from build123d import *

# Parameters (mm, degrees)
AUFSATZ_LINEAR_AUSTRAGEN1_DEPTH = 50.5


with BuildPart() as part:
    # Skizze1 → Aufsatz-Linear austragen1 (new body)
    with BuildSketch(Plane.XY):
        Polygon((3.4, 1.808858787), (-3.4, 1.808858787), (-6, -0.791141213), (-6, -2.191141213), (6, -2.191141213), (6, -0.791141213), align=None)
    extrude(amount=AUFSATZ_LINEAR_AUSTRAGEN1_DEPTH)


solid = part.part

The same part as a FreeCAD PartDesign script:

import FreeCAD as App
import Part
import Sketcher
from FreeCAD import Vector
Q = App.Units.Quantity

doc = App.newDocument("Part")
body = doc.addObject("PartDesign::Body", "Body")

sketch1 = doc.addObject("Sketcher::SketchObject", "Sketch")
body.addObject(sketch1)
sketch1.AttachmentSupport = (doc.XY_Plane, [""])
sketch1.MapMode = "FlatFace"
sketch1.addGeometry(Part.LineSegment(Vector(3.4, 1.8, 0), Vector(-3.4, 1.8, 0)), False)
sketch1.addGeometry(Part.LineSegment(Vector(-3.4, 1.8, 0), Vector(-6, -0.8, 0)), False)
sketch1.addGeometry(Part.LineSegment(Vector(-6, -0.8, 0), Vector(-6, -2.2, 0)), False)
sketch1.addGeometry(Part.LineSegment(Vector(-6, -2.2, 0), Vector(6, -2.2, 0)), False)
sketch1.addGeometry(Part.LineSegment(Vector(6, -2.2, 0), Vector(6, -0.8, 0)), False)
sketch1.addGeometry(Part.LineSegment(Vector(6, -0.8, 0), Vector(3.4, 1.8, 0)), False)
sketch1.addConstraint(Sketcher.Constraint("Coincident", 0, 2, 1, 1))
sketch1.addConstraint(Sketcher.Constraint("Coincident", 1, 2, 2, 1))
sketch1.addConstraint(Sketcher.Constraint("Coincident", 2, 2, 3, 1))
sketch1.addConstraint(Sketcher.Constraint("Coincident", 3, 2, 4, 1))
sketch1.addConstraint(Sketcher.Constraint("Coincident", 4, 2, 5, 1))
sketch1.addConstraint(Sketcher.Constraint("Coincident", 5, 2, 0, 1))
sketch1.addConstraint(Sketcher.Constraint("Horizontal", 0))
sketch1.addConstraint(Sketcher.Constraint("Vertical", 2))
sketch1.addConstraint(Sketcher.Constraint("Horizontal", 3))
sketch1.addConstraint(Sketcher.Constraint("Vertical", 4))
sketch1.addConstraint(Sketcher.Constraint("Symmetric", 1, 2, 4, 2, -2))
sketch1.addConstraint(Sketcher.Constraint("Perpendicular", 1, 5))
sketch1.addConstraint(Sketcher.Constraint("Equal", 1, 5))
sketch1.addConstraint(Sketcher.Constraint("DistanceX", 3, 1, 3, 2, Q("12 mm")))
sketch1.addConstraint(Sketcher.Constraint("DistanceX", 0, 2, 0, 1, Q("6.8 mm")))
sketch1.addConstraint(Sketcher.Constraint("DistanceY", 2, 2, 2, 1, Q("1.4 mm")))
sketch1.addConstraint(Sketcher.Constraint("DistanceY", -1, 1, 0, 2, Q("1.808859 mm")))
pad1 = doc.addObject("PartDesign::Pad", "Pad")
body.addObject(pad1)
pad1.Profile = sketch1
pad1.Length = 50.5

doc.recompute()
